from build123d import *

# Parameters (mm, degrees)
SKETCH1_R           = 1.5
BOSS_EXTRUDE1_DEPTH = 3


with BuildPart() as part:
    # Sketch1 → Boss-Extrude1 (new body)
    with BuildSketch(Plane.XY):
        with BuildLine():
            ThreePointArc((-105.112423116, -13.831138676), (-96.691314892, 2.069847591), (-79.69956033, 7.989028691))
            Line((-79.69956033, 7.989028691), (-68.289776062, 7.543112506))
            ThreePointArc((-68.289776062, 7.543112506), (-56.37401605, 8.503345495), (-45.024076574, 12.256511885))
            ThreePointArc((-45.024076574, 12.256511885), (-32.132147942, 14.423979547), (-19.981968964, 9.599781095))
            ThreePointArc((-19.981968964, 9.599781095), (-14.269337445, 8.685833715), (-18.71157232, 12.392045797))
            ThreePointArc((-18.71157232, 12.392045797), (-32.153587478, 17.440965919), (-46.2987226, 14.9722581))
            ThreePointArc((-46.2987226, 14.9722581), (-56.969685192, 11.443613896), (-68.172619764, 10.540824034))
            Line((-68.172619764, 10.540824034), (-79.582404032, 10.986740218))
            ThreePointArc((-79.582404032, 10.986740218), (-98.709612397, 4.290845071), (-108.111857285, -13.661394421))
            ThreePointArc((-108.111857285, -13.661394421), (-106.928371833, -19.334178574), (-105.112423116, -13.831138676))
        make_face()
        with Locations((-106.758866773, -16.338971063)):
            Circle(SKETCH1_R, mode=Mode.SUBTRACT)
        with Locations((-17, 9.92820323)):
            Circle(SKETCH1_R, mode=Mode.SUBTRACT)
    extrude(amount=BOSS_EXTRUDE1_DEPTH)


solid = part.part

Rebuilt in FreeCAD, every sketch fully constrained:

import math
import FreeCAD as App
import Part
import Sketcher

doc = App.newDocument("Part")
body = doc.addObject("PartDesign::Body", "Body")

sketch1 = body.newObject("Sketcher::SketchObject", "Sketch")
sketch1.AttachmentSupport = (doc.getObject("XY_Plane"), [""])
sketch1.MapMode = "FlatFace"
sketch1.addGeometry([
    Part.ArcOfCircle(Part.Circle(App.Vector(-80.660561, -16.600373, 0), App.Vector(0, 0, 1), 24.608174), math.radians(87.76191), math.radians(173.53864)),
    Part.LineSegment(App.Vector(-79.69956, 7.989029, 0), App.Vector(-68.289776, 7.543113, 0)),
    Part.ArcOfCircle(Part.Circle(App.Vector(-66.331363, 57.653573, 0), App.Vector(0, 0, 1), 50.148715), math.radians(-92.23809), math.radians(-64.856805)),
    Part.ArcOfCircle(Part.Circle(App.Vector(-34.696494, -9.747317, 0), App.Vector(0, 0, 1), 24.306943), math.radians(52.745029), math.radians(115.143195)),
    Part.ArcOfCircle(Part.Circle(App.Vector(-17, 9.928203, 0), App.Vector(0, 0, 1), 3), math.radians(-173.715003), math.radians(124.786781)),
    Part.ArcOfCircle(Part.Circle(App.Vector(-34.696494, -9.747317, 0), App.Vector(0, 0, 1), 27.306943), math.radians(54.170203), math.radians(115.143195)),
    Part.ArcOfCircle(Part.Circle(App.Vector(-66.331363, 57.653573, 0), App.Vector(0, 0, 1), 47.148715), math.radians(-92.23809), math.radians(-64.856805)),
    Part.LineSegment(App.Vector(-68.17262, 10.540824, 0), App.Vector(-79.582404, 10.98674, 0)),
    Part.ArcOfCircle(Part.Circle(App.Vector(-80.660561, -16.600373, 0), App.Vector(0, 0, 1), 27.608174), math.radians(87.76191), math.radians(173.889101)),
    Part.ArcOfCircle(Part.Circle(App.Vector(-106.758867, -16.338971, 0), App.Vector(0, 0, 1), 3), math.radians(116.807658), math.radians(416.714276)),
    Part.Circle(App.Vector(-106.758867, -16.338971, 0), App.Vector(0, 0, 1), 1.5),
    Part.Circle(App.Vector(-17, 9.928203, 0), App.Vector(0, 0, 1), 1.5),
], False)
sketch1.addConstraint([
    Sketcher.Constraint("Tangent", 0, 1, 1, 1),
    Sketcher.Constraint("Tangent", 1, 2, 2, 1),
    Sketcher.Constraint("Tangent", 2, 2, 3, 2),
    Sketcher.Constraint("Coincident", 3, 1, 4, 1),
    Sketcher.Constraint("Coincident", 4, 2, 5, 1),
    Sketcher.Constraint("Tangent", 5, 2, 6, 2),
    Sketcher.Constraint("Tangent", 6, 1, 7, 1),
    Sketcher.Constraint("Tangent", 7, 2, 8, 1),
    Sketcher.Constraint("Coincident", 8, 2, 9, 1),
    Sketcher.Constraint("Coincident", 9, 2, 0, 2),
    Sketcher.Constraint("Coincident", 5, 3, 3, 3),
    Sketcher.Constraint("Coincident", 6, 3, 2, 3),
    Sketcher.Constraint("Coincident", 8, 3, 0, 3),
    Sketcher.Constraint("Coincident", 10, 3, 9, 3),
    Sketcher.Constraint("Coincident", 11, 3, 4, 3),
    Sketcher.Constraint("Equal", 4, 9),
    Sketcher.Constraint("Equal", 10, 11),
    Sketcher.Constraint("Parallel", 1, 7),
    Sketcher.Constraint("Diameter", 10, 3.0),
    Sketcher.Constraint("Radius", 4, 3.0),
    Sketcher.Constraint("DistanceX", 4, 3, -1, 1, 17.0),
    Sketcher.Constraint("Radius", 0, 24.608174),
    Sketcher.Constraint("Radius", 2, 50.148715),
    Sketcher.Constraint("Radius", 3, 24.306943),
    Sketcher.Constraint("Radius", 5, 27.306943),
    Sketcher.Constraint("DistanceX", 0, 3, 0, 1, 0.961001),
    Sketcher.Constraint("DistanceY", 9, 3, 0, 1, 24.328),
    Sketcher.Constraint("DistanceX", 1, 2, 2, 2, 23.265699),
    Sketcher.Constraint("DistanceY", 5, 3, 3, 1, 19.347098),
    Sketcher.Constraint("DistanceX", 0, 3, -1, 1, 80.660561),
    Sketcher.Constraint("DistanceY", 9, 3, -1, 1, 16.338971),
    Sketcher.Constraint("DistanceX", 3, 1, -1, 1, 19.981969),
    Sketcher.Constraint("DistanceY", 9, 2, -1, 1, 13.831139),
])
pad1 = body.newObject("PartDesign::Pad", "Pad")
pad1.Profile = sketch1
pad1.Length = 3

doc.recompute()
